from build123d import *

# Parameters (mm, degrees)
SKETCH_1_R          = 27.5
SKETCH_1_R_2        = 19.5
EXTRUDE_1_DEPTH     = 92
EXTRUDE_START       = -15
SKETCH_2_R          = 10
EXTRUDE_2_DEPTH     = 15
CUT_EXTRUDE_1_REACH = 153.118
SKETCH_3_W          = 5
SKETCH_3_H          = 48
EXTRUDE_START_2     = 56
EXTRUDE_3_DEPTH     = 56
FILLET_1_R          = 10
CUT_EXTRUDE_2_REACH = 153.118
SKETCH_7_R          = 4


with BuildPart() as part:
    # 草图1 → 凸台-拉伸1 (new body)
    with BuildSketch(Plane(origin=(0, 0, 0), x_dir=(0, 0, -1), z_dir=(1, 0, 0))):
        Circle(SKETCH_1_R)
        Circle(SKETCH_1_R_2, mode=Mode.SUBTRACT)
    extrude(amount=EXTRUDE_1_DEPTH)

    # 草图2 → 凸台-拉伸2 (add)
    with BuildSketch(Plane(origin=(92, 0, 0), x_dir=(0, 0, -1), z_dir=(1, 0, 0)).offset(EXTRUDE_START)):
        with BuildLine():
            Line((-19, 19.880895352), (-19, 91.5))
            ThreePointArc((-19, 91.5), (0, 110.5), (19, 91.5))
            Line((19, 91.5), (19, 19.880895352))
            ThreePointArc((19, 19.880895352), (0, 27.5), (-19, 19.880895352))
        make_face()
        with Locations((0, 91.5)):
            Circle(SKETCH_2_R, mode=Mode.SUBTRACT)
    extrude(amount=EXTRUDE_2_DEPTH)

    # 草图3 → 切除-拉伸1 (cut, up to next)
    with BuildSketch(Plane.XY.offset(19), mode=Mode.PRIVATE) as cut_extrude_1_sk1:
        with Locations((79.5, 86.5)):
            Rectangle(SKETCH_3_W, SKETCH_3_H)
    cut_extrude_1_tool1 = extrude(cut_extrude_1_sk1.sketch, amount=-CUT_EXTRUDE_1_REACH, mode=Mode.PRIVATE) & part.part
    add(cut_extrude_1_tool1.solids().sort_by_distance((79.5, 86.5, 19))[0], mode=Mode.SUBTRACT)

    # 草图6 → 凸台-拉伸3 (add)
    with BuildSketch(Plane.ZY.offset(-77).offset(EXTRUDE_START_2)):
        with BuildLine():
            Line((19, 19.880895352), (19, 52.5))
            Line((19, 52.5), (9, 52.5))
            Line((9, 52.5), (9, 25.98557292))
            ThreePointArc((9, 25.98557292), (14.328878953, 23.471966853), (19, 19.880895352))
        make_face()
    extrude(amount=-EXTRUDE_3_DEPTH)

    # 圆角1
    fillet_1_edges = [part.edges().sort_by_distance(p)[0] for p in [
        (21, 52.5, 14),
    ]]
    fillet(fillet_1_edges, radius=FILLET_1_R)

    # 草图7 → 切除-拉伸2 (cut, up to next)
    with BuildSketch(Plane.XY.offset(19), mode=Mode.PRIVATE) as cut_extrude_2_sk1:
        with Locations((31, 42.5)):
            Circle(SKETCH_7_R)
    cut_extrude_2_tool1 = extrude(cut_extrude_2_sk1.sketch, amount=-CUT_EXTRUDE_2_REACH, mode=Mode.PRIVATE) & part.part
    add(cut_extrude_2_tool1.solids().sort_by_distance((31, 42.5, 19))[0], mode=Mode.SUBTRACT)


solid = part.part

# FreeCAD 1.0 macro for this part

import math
import FreeCAD as App
import Part
import Sketcher


def edges_at(feature, points):
    """Names of the edges that pass closest to the given points."""
    edges = feature.Shape.Edges
    near = lambda p: min(range(len(edges)), key=lambda i: edges[i].distToShape(Part.Vertex(*p))[0])
    return sorted({f"Edge{near(p) + 1}" for p in points})


def add_polygon(sketch, points):
    """Adds a closed chain of lines whose ends are joined by coincident constraints."""
    first, n = sketch.GeometryCount, len(points)
    for a, b in zip(points, points[1:] + points[:1]):
        sketch.addGeometry(Part.LineSegment(App.Vector(*a, 0), App.Vector(*b, 0)), False)
    for i in range(n):
        sketch.addConstraint(Sketcher.Constraint("Coincident", first + i, 2, first + (i + 1) % n, 1))

doc = App.newDocument("Part")
params = doc.addObject("Spreadsheet::Sheet", "Params")
for row, (alias, value) in enumerate([
    ("sketch1_diameter", "55 mm"),
    ("sketch1_diameter2", "39 mm"),
    ("pad1_length", "92 mm"),
    ("sketch2_diameter", "20 mm"),
    ("sketch2_radius", "19 mm"),
    ("sketch2_radius2", "27.5 mm"),
    ("pad2_length", "15 mm"),
    ("sketch3_width", "5 mm"),
    ("sketch3_height", "48 mm"),
    ("pocket1_length", "38 mm"),
    ("sketch4_radius", "27.5 mm"),
    ("sketch4_height", "10 mm"),
    ("pad3_length", "56 mm"),
    ("fillet_radius", "10 mm"),
    ("sketch5_diameter", "8 mm"),
], start=1):
    params.set(f"A{row}", alias)
    params.set(f"B{row}", "=" + value)
    params.setAlias(f"B{row}", alias)

body = doc.addObject("PartDesign::Body", "Body")

# Sketch on YZ plane
sketch1 = body.newObject("Sketcher::SketchObject", "Sketch")
sketch1.AttachmentSupport = (doc.getObject("YZ_Plane"), [""])
sketch1.MapMode = "FlatFace"
sketch1.addGeometry([
    Part.Circle(App.Vector(0, 0, 0), App.Vector(0, 0, 1), 28),
    Part.Circle(App.Vector(0, 0, 0), App.Vector(0, 0, 1), 20),
], False)
sketch1.addConstraint([
    Sketcher.Constraint("Coincident", 0, 3, -1, 1),
    Sketcher.Constraint("Coincident", 1, 3, -1, 1),
    Sketcher.Constraint("Diameter", 0, 55.0),
    Sketcher.Constraint("Diameter", 1, 39.0),
])
sketch1.setExpression("Constraints[2]", "Params.sketch1_diameter")
sketch1.setExpression("Constraints[3]", "Params.sketch1_diameter2")
pad1 = body.newObject("PartDesign::Pad", "Pad")
pad1.Profile = sketch1
pad1.setExpression("Length", "Params.pad1_length")

# Sketch on YZ plane
sketch2 = body.newObject("Sketcher::SketchObject", "Sketch001")
sketch2.AttachmentSupport = (doc.getObject("YZ_Plane"), [""])
sketch2.MapMode = "FlatFace"
sketch2.AttachmentOffset = App.Placement(App.Vector(0, 0, 77), App.Rotation())
sketch2.addGeometry([
    Part.LineSegment(App.Vector(92, 19, 0), App.Vector(20, 19, 0)),  # 0
    Part.ArcOfCircle(Part.Circle(App.Vector(0, 0, 0), App.Vector(0, 0, 1), 28), math.radians(-44), math.radians(44)),  # 1
    Part.LineSegment(App.Vector(20, -19, 0), App.Vector(92, -19, 0)),  # 2
    Part.ArcOfCircle(Part.Circle(App.Vector(92, 0, 0), App.Vector(0, 0, 1), 19), math.radians(-90), math.radians(90)),  # 3
    Part.Circle(App.Vector(92, 0, 0), App.Vector(0, 0, 1), 10),  # 4
], False)
sketch2.addConstraint([
    Sketcher.Constraint("Coincident", 0, 2, 1, 2),
    Sketcher.Constraint("Coincident", 1, 1, 2, 1),
    Sketcher.Constraint("Tangent", 2, 2, 3, 1),
    Sketcher.Constraint("Tangent", 3, 2, 0, 1),
    Sketcher.Constraint("Horizontal", 0),
    Sketcher.Constraint("Horizontal", 2),
    Sketcher.Constraint("Coincident", 1, 3, -1, 1),
    Sketcher.Constraint("Coincident", 4, 3, 3, 3),
    Sketcher.Constraint("PointOnObject", 3, 3, -1),
    Sketcher.Constraint("Diameter", 4, 20.0),
    Sketcher.Constraint("Radius", 3, 19.0),
    Sketcher.Constraint("Radius", 1, 27.5),
    Sketcher.Constraint("DistanceX", -1, 1, 3, 3, 91.5),
])
sketch2.setExpression("Constraints[9]", "Params.sketch2_diameter")
sketch2.setExpression("Constraints[10]", "Params.sketch2_radius")
sketch2.setExpression("Constraints[11]", "Params.sketch2_radius2")
pad2 = body.newObject("PartDesign::Pad", "Pad001")
pad2.Profile = sketch2
pad2.setExpression("Length", "Params.pad2_length")

# Sketch on XY plane
sketch3 = body.newObject("Sketcher::SketchObject", "Sketch002")
sketch3.AttachmentSupport = (doc.getObject("XY_Plane"), [""])
sketch3.MapMode = "FlatFace"
sketch3.AttachmentOffset = App.Placement(App.Vector(0, 0, 19), App.Rotation())
add_polygon(sketch3, [(77, 110), (77, 62), (82, 62), (82, 110)])  # lines 0-3
sketch3.addConstraint([
    Sketcher.Constraint("Vertical", 0),
    Sketcher.Constraint("Horizontal", 1),
    Sketcher.Constraint("Vertical", 2),
    Sketcher.Constraint("Horizontal", 3),
    Sketcher.Constraint("DistanceX", 1, 1, 1, 2, 5.0),
    Sketcher.Constraint("DistanceY", 0, 2, 0, 1, 48.0),
    Sketcher.Constraint("DistanceX", -1, 1, 0, 2, 77.0),
    Sketcher.Constraint("DistanceY", -1, 1, 0, 2, 62.5),
])
sketch3.setExpression("Constraints[8]", "Params.sketch3_width")
sketch3.setExpression("Constraints[9]", "Params.sketch3_height")
pocket1 = body.newObject("PartDesign::Pocket", "Pocket")
pocket1.Profile = sketch3
pocket1.setExpression("Length", "Params.pocket1_length")

# Sketch on YZ plane
sketch4 = body.newObject("Sketcher::SketchObject", "Sketch003")
sketch4.AttachmentSupport = (doc.getObject("YZ_Plane"), [""])
sketch4.MapMode = "FlatFace"
sketch4.AttachmentOffset = App.Placement(App.Vector(0, 0, 21), App.Rotation())
sketch4.addGeometry([
    Part.LineSegment(App.Vector(20, 19, 0), App.Vector(52, 19, 0)),
    Part.LineSegment(App.Vector(52, 19, 0), App.Vector(52, 9, 0)),
    Part.LineSegment(App.Vector(52, 9, 0), App.Vector(26, 9, 0)),
    Part.ArcOfCircle(Part.Circle(App.Vector(0, 0, 0), App.Vector(0, 0, 1), 27), math.radians(19), math.radians(44)),
], False)
sketch4.addConstraint([
    Sketcher.Constraint("Coincident", 0, 2, 1, 1),
    Sketcher.Constraint("Coincident", 1, 2, 2, 1),
    Sketcher.Constraint("Coincident", 2, 2, 3, 1),
    Sketcher.Constraint("Coincident", 3, 2, 0, 1),
    Sketcher.Constraint("Horizontal", 0),
    Sketcher.Constraint("Vertical", 1),
    Sketcher.Constraint("Horizontal", 2),
    Sketcher.Constraint("Coincident", 3, 3, -1, 1),
    Sketcher.Constraint("Radius", 3, 27.5),
    Sketcher.Constraint("DistanceY", 1, 2, 1, 1, 10.0),
    Sketcher.Constraint("DistanceY", -1, 1, 0, 2, 19.0),
    Sketcher.Constraint("DistanceX", -1, 1, 0, 2, 52.5),
])
sketch4.setExpression("Constraints[8]", "Params.sketch4_radius")
sketch4.setExpression("Constraints[9]", "Params.sketch4_height")
pad3 = body.newObject("PartDesign::Pad", "Pad002")
pad3.Profile = sketch4
pad3.setExpression("Length", "Params.pad3_length")
doc.recompute()

fillet = body.newObject("PartDesign::Fillet", "Fillet")
fillet.Base = (pad3, edges_at(pad3, [(21, 52.5, 14)]))
fillet.setExpression("Radius", "Params.fillet_radius")

# Sketch on XY plane
sketch5 = body.newObject("Sketcher::SketchObject", "Sketch004")
sketch5.AttachmentSupport = (doc.getObject("XY_Plane"), [""])
sketch5.MapMode = "FlatFace"
sketch5.AttachmentOffset = App.Placement(App.Vector(0, 0, 19), App.Rotation())
sketch5.addGeometry(Part.Circle(App.Vector(31, 42.5, 0), App.Vector(0, 0, 1), 4), False)
sketch5.addConstraint([
    Sketcher.Constraint("Diameter", 0, 8.0),
    Sketcher.Constraint("DistanceX", -1, 1, 0, 3, 31.0),
    Sketcher.Constraint("DistanceY", -1, 1, 0, 3, 42.5),
])
sketch5.setExpression("Constraints[0]", "Params.sketch5_diameter")
pocket2 = body.newObject("PartDesign::Pocket", "Pocket001")
pocket2.Profile = sketch5
pocket2.Type = "UpToFirst"

doc.recompute()
